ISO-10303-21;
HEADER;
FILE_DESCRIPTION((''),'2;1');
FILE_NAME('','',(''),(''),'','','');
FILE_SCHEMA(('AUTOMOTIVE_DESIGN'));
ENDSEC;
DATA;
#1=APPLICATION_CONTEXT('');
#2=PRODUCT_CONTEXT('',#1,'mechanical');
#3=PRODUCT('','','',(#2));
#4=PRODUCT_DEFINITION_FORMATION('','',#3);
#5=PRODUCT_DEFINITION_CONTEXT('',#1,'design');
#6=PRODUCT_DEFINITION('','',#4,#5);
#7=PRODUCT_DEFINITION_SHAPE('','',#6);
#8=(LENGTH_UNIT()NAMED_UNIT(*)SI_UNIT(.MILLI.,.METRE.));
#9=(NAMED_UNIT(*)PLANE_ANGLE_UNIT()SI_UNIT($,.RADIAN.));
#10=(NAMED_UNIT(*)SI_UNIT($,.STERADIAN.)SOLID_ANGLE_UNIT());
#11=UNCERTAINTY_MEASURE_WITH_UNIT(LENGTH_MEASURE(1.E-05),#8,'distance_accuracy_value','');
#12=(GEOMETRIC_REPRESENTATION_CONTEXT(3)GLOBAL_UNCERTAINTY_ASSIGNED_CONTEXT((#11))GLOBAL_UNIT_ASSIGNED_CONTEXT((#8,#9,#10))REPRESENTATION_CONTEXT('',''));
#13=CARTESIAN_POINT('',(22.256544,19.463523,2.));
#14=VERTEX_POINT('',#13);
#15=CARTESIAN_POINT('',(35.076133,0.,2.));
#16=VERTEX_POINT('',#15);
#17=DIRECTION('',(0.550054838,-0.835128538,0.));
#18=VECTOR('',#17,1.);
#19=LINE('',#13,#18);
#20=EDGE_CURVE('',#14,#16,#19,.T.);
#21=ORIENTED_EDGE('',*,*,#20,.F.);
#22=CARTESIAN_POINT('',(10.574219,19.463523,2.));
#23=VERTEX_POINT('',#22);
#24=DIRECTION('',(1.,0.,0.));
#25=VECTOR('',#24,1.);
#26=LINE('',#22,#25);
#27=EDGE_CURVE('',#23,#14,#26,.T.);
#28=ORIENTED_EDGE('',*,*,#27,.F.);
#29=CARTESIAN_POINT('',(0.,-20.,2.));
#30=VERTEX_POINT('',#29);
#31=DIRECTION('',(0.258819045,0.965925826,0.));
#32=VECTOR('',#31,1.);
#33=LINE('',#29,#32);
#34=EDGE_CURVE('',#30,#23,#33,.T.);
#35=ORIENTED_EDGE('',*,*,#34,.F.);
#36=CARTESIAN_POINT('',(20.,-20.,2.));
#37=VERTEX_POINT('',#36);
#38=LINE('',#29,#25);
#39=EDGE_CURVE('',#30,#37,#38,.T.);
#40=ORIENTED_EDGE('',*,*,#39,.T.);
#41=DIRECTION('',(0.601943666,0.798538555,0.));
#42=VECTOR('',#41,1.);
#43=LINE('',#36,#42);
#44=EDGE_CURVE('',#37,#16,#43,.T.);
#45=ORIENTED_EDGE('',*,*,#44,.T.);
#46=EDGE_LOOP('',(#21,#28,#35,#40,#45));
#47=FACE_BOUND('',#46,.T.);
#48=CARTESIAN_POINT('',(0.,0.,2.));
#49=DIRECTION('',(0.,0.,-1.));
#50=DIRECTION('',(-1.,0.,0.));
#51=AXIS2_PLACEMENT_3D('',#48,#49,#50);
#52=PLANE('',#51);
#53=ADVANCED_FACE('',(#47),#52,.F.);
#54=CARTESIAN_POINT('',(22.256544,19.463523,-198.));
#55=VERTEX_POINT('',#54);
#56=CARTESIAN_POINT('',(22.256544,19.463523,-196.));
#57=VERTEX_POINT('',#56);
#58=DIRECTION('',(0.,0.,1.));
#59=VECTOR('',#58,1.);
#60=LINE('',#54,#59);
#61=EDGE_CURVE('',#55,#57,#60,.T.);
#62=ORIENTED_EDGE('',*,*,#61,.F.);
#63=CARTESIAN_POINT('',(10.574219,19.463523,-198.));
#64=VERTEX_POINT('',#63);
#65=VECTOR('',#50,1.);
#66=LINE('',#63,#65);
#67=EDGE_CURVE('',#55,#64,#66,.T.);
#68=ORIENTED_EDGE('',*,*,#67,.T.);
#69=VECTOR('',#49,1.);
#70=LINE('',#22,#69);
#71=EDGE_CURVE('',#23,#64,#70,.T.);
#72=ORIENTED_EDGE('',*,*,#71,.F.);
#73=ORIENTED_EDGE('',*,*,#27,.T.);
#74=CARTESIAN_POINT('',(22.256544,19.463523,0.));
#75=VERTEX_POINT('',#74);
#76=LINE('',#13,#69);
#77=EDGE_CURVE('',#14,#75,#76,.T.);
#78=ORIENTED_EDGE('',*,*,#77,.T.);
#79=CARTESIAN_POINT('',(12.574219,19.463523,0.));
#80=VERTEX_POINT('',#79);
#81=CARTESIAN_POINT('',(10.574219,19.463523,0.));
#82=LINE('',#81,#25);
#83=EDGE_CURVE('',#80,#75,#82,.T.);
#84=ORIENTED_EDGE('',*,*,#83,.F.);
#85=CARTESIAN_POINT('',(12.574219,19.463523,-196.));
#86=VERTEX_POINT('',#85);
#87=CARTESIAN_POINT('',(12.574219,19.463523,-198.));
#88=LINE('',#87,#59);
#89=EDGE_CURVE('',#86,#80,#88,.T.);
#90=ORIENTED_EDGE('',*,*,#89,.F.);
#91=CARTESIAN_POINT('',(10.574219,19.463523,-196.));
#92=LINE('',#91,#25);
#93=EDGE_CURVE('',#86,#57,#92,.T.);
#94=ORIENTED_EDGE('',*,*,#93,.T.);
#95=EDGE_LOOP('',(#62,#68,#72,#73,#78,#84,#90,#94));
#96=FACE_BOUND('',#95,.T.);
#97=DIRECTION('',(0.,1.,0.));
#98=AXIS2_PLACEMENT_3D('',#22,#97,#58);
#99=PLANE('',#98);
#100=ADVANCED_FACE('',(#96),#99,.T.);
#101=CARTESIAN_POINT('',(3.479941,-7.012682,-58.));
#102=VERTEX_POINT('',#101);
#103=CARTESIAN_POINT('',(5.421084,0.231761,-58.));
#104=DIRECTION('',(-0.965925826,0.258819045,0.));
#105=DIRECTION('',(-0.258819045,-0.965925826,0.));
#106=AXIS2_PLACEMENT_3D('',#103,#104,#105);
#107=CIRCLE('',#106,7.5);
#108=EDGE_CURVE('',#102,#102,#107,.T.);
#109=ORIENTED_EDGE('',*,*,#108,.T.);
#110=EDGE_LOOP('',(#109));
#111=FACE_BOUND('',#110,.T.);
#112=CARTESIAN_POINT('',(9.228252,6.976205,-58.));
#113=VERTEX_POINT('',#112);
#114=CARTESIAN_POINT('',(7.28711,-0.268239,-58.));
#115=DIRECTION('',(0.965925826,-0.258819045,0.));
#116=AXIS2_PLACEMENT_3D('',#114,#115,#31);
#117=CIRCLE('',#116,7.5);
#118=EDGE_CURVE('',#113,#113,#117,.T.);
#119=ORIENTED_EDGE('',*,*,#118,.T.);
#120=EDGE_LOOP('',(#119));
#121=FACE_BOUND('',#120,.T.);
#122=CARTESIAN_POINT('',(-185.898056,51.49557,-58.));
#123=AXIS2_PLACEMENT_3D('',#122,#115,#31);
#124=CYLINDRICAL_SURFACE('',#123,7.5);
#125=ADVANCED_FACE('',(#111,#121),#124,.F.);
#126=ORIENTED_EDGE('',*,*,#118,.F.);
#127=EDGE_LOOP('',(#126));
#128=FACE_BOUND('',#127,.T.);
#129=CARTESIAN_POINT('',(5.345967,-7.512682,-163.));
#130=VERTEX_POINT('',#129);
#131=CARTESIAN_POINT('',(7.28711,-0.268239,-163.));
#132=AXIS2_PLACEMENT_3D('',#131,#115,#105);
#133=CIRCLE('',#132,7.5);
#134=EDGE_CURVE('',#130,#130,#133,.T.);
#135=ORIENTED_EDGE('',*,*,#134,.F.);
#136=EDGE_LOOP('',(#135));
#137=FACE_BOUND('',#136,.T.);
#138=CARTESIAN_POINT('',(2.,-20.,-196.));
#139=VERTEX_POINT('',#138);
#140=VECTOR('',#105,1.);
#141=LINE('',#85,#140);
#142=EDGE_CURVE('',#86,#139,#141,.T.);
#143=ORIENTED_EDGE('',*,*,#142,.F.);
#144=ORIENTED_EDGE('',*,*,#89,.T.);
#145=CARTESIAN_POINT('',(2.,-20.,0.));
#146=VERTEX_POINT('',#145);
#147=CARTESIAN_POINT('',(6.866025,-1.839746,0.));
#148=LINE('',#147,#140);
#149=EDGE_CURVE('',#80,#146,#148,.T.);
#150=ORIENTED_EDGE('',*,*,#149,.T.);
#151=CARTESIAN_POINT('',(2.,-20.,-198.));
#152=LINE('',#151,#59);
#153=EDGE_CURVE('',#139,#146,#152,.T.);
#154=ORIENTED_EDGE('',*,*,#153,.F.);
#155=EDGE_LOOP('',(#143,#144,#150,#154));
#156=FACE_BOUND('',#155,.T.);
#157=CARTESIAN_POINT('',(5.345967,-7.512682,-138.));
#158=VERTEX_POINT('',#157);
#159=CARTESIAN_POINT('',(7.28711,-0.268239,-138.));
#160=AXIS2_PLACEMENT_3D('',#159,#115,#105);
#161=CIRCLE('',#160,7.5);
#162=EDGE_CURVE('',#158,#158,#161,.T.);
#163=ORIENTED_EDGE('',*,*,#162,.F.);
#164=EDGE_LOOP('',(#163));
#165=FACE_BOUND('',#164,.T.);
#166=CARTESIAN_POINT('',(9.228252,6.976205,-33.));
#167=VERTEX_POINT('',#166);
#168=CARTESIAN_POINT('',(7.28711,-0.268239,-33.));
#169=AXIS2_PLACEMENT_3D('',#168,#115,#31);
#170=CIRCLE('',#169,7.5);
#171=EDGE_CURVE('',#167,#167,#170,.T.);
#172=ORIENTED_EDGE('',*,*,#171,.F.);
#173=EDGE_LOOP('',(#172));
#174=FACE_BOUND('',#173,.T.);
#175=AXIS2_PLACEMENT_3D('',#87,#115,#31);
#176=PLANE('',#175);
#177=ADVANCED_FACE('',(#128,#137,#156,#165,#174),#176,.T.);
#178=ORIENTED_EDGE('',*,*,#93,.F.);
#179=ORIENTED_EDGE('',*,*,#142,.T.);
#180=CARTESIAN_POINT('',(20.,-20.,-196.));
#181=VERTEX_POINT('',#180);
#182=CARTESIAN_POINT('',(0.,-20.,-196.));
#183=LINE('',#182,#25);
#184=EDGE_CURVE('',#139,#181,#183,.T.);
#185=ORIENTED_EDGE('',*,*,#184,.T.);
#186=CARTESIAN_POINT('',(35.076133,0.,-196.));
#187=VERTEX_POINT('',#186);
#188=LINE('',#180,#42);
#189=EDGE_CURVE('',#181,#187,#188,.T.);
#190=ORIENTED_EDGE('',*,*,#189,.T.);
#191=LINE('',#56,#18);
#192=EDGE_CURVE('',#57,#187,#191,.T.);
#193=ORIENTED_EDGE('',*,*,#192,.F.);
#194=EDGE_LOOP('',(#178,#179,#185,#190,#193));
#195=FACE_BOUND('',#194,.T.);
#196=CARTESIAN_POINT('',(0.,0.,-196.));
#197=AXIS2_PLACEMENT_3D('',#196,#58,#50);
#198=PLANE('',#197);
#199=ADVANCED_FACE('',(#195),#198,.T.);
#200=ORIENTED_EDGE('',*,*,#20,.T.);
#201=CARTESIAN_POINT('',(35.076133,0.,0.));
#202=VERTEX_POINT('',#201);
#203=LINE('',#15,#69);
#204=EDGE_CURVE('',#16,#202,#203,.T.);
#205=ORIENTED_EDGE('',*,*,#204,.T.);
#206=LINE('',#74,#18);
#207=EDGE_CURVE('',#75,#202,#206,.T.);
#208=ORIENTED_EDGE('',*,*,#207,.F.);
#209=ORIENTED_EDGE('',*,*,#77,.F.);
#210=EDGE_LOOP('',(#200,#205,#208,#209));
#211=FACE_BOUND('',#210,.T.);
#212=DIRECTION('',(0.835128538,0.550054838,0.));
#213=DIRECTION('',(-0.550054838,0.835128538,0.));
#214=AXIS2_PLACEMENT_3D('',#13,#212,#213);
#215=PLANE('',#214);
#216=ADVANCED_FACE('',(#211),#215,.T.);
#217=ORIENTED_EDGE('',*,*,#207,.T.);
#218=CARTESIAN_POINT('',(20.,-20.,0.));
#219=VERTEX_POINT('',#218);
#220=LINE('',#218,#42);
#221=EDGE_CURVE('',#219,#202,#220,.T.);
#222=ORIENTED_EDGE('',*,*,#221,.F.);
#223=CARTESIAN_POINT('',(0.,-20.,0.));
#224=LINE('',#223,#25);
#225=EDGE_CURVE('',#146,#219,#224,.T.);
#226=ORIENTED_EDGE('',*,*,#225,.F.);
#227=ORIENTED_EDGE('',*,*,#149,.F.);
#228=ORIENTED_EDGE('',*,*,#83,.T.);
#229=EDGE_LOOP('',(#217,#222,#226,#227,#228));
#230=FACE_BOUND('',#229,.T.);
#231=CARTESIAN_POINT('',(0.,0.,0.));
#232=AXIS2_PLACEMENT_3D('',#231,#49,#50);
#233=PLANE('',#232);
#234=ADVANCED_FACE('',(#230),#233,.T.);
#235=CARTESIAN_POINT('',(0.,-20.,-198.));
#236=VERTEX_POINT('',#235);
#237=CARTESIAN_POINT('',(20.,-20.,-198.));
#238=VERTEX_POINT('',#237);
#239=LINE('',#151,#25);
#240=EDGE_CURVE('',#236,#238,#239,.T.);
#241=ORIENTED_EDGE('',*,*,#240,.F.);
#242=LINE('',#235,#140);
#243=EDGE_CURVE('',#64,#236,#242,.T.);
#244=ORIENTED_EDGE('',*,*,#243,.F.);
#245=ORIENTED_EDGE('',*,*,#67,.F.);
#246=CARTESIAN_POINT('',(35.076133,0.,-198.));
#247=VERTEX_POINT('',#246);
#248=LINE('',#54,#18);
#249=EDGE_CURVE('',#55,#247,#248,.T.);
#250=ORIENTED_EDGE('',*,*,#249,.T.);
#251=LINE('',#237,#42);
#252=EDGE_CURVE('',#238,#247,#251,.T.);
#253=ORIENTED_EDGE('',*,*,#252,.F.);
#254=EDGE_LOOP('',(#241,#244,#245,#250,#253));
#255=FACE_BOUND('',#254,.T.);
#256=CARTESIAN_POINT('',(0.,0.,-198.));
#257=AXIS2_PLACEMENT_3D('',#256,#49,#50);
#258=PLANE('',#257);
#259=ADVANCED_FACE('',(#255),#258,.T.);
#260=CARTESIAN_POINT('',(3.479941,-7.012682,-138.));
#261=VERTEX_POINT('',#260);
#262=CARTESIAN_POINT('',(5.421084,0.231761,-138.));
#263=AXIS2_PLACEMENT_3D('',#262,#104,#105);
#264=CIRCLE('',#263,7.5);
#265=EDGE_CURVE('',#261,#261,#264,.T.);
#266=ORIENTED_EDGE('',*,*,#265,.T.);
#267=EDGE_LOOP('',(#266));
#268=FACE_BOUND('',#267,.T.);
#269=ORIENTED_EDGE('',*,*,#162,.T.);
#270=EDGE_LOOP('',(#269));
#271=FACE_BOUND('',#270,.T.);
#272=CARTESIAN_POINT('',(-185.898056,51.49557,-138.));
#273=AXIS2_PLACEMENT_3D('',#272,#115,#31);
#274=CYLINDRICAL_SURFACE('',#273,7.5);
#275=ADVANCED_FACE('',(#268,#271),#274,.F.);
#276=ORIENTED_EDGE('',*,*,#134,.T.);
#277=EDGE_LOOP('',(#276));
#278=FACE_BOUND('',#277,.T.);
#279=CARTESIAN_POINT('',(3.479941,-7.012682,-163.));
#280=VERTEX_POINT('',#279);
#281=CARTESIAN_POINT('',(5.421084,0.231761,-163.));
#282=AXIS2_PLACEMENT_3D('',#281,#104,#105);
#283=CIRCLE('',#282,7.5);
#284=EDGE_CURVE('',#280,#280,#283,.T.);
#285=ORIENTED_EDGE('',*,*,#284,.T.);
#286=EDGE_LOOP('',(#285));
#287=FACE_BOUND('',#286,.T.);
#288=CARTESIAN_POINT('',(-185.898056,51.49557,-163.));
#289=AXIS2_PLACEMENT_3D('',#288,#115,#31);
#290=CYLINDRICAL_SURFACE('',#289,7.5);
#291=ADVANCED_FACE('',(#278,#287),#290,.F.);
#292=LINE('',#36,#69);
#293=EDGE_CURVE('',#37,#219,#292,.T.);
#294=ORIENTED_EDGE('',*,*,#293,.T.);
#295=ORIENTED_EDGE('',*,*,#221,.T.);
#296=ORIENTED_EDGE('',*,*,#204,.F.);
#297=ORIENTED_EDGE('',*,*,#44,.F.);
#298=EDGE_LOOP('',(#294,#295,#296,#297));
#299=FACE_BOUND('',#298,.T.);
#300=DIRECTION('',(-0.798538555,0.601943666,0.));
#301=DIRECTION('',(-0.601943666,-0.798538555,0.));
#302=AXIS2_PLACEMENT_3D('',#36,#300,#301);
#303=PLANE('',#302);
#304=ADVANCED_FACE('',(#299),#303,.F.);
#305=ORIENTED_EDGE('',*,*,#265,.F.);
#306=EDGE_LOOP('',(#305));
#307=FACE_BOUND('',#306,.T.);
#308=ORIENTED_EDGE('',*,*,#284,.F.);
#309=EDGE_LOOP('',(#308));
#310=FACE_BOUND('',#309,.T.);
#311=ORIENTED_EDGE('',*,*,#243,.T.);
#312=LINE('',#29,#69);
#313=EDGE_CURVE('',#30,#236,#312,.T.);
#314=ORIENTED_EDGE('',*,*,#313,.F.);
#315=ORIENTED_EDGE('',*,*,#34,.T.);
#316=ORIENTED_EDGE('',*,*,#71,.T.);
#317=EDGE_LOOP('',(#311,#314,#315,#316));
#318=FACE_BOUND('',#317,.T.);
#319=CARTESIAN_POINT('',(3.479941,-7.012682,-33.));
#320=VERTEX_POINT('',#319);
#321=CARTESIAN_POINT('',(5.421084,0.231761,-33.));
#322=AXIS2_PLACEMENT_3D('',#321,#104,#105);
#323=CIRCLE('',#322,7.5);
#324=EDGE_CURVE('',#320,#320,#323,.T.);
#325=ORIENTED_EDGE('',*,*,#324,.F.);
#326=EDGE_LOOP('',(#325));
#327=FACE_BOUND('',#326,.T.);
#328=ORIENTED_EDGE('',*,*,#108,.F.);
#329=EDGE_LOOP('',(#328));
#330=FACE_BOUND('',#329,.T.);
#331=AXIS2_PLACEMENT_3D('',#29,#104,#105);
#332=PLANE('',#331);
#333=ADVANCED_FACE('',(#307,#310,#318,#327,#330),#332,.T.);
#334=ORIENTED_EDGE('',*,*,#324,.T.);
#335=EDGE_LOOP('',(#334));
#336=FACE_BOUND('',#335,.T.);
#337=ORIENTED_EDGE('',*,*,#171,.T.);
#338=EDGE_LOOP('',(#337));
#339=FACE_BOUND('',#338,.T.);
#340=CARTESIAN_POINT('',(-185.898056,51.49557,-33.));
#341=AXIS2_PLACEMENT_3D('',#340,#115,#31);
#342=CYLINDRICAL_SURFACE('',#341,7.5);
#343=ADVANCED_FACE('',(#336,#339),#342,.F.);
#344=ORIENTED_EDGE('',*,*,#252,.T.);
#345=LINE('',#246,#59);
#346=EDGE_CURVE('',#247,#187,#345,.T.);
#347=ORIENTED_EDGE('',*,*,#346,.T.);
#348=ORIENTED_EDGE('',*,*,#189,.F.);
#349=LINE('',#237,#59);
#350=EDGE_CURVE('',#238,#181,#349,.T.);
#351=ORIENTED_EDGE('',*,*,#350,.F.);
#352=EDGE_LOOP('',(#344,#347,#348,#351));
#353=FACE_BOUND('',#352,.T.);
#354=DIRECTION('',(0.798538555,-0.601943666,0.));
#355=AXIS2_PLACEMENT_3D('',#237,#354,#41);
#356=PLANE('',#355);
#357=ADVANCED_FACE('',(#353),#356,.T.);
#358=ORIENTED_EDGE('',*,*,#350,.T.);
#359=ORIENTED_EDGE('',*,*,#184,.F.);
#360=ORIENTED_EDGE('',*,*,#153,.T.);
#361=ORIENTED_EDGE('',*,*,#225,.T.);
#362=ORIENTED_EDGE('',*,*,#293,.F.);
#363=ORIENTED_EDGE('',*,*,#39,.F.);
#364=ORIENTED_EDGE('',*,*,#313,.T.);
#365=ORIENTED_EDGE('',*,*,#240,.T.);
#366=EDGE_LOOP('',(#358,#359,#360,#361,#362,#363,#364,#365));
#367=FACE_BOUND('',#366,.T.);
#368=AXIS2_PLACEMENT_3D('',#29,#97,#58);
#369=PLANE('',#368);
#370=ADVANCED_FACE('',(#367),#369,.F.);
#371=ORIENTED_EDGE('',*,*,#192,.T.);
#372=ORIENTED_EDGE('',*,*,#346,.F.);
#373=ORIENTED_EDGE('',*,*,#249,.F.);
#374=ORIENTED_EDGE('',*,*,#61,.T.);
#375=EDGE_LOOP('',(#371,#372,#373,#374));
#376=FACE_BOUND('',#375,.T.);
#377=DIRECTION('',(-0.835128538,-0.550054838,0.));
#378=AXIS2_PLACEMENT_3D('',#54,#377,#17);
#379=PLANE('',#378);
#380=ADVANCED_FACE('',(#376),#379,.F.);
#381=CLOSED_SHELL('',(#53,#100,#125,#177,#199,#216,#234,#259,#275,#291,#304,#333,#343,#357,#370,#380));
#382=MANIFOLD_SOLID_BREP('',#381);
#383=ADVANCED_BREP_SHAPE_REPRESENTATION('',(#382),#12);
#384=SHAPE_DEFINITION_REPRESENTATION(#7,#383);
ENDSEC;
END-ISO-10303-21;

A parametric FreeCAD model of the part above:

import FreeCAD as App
import Part
import Sketcher

V = App.Vector
Q = App.Units.Quantity

doc = App.newDocument("Part")
body = doc.addObject("PartDesign::Body", "Body")

sketch1 = body.newObject("Sketcher::SketchObject", "Sketch")
sketch1.AttachmentSupport = (doc.getObject("XY_Plane"), [""])
sketch1.MapMode = "FlatFace"
sketch1.addGeometry([
    Part.LineSegment(V(22, 19, 0), V(11, 19, 0)),
    Part.LineSegment(V(11, 19, 0), V(0, -20, 0)),
    Part.LineSegment(V(0, -20, 0), V(20, -20, 0)),
    Part.LineSegment(V(20, -20, 0), V(35, 0, 0)),
    Part.LineSegment(V(35, 0, 0), V(22, 19, 0)),
], False)
sketch1.addConstraint([
    Sketcher.Constraint("Coincident", 0, 2, 1, 1),
    Sketcher.Constraint("Coincident", 1, 2, 2, 1),
    Sketcher.Constraint("Coincident", 2, 2, 3, 1),
    Sketcher.Constraint("Coincident", 3, 2, 4, 1),
    Sketcher.Constraint("Coincident", 4, 2, 0, 1),
    Sketcher.Constraint("Horizontal", 0),
    Sketcher.Constraint("Horizontal", 2),
    Sketcher.Constraint("PointOnObject", 1, 2, -2),
    Sketcher.Constraint("PointOnObject", 3, 2, -1),
    Sketcher.Constraint("DistanceX", 2, 1, 2, 2, 20.0),
    Sketcher.Constraint("Angle", 1, Q("-105 deg")),
    Sketcher.Constraint("DistanceY", 1, 2, -1, 1, 20.0),
    Sketcher.Constraint("Distance", 4, 23.30602),
    Sketcher.Constraint("DistanceX", 0, 2, 0, 1, 11.682325),
    Sketcher.Constraint("DistanceX", -1, 1, 0, 2, 10.574219),
])
pad1 = body.newObject("PartDesign::Pad", "Pad")
pad1.Profile = sketch1
pad1.Length = 2

sketch2 = body.newObject("Sketcher::SketchObject", "Sketch001")
sketch2.AttachmentSupport = (doc.getObject("XY_Plane"), [""])
sketch2.MapMode = "FlatFace"
sketch2.AttachmentOffset = App.Placement(V(0, 0, 2), App.Rotation())
sketch2.addGeometry([
    Part.LineSegment(V(12.6, 19.5, 0), V(10.6, 19.5, 0)),
    Part.LineSegment(V(10.6, 19.5, 0), V(0, -20, 0)),
    Part.LineSegment(V(0, -20, 0), V(2, -20, 0)),
    Part.LineSegment(V(2, -20, 0), V(12.6, 19.5, 0)),
], False)
sketch2.addConstraint([
    Sketcher.Constraint("Coincident", 0, 2, 1, 1),
    Sketcher.Constraint("Coincident", 1, 2, 2, 1),
    Sketcher.Constraint("Coincident", 2, 2, 3, 1),
    Sketcher.Constraint("Coincident", 3, 2, 0, 1),
    Sketcher.Constraint("Horizontal", 0),
    Sketcher.Constraint("Horizontal", 2),
    Sketcher.Constraint("PointOnObject", 1, 2, -2),
    Sketcher.Constraint("Parallel", 1, 3),
    Sketcher.Constraint("DistanceX", 0, 2, 0, 1, 2.0),
    Sketcher.Constraint("Angle", 1, Q("-105 deg")),
    Sketcher.Constraint("DistanceY", 1, 2, -1, 1, 20.0),
    Sketcher.Constraint("DistanceX", -1, 1, 0, 2, 10.574219),
])
pad2 = body.newObject("PartDesign::Pad", "Pad001")
pad2.Profile = sketch2
pad2.Length = 200
pad2.Reversed = True
doc.recompute()

datumplane = body.newObject("PartDesign::Plane", "DatumPlane")
datumplane.AttachmentSupport = (doc.getObject("XY_Plane"), [""])
datumplane.MapMode = "FlatFace"
datumplane.AttachmentOffset = App.Placement(V(0, 0, -98), App.Rotation())
mirrored = body.newObject("PartDesign::Mirrored", "Mirrored")
mirrored.Originals = [pad1]
mirrored.MirrorPlane = (datumplane, [""])
body.Tip = mirrored

sketch3 = body.newObject("Sketcher::SketchObject", "Sketch002")
sketch3.Placement = App.Placement(V(6.866025, -1.839746, 0), App.Rotation(V(0, 0, -1), V(0.258819045, 0.965925826, 0), V(0.965925826, -0.258819045, 0), "ZXY"))
sketch3.addGeometry([
    Part.Circle(V(58, 2, 0), V(0, 0, 1), 8),
    Part.Circle(V(33, 2, 0), V(0, 0, 1), 8),
    Part.Circle(V(163, 2, 0), V(0, 0, 1), 8),
    Part.Circle(V(138, 2, 0), V(0, 0, 1), 8),
], False)
sketch3.addConstraint([
    Sketcher.Constraint("Equal", 0, 1),
    Sketcher.Constraint("Equal", 1, 2),
    Sketcher.Constraint("Equal", 2, 3),
    Sketcher.Constraint("Horizontal", 0, 3, 1, 3),
    Sketcher.Constraint("Horizontal", 1, 3, 2, 3),
    Sketcher.Constraint("Horizontal", 2, 3, 3, 3),
    Sketcher.Constraint("Diameter", 0, 15.0),
    Sketcher.Constraint("DistanceX", -1, 1, 0, 3, 58.0),
    Sketcher.Constraint("DistanceX", -1, 1, 1, 3, 33.0),
    Sketcher.Constraint("DistanceX", -1, 1, 2, 3, 163.0),
    Sketcher.Constraint("DistanceX", -1, 1, 3, 3, 138.0),
    Sketcher.Constraint("DistanceY", -1, 1, 0, 3, 1.626944),
])
pocket1 = body.newObject("PartDesign::Pocket", "Pocket")
pocket1.Profile = sketch3
pocket1.Length = 200

doc.recompute()
